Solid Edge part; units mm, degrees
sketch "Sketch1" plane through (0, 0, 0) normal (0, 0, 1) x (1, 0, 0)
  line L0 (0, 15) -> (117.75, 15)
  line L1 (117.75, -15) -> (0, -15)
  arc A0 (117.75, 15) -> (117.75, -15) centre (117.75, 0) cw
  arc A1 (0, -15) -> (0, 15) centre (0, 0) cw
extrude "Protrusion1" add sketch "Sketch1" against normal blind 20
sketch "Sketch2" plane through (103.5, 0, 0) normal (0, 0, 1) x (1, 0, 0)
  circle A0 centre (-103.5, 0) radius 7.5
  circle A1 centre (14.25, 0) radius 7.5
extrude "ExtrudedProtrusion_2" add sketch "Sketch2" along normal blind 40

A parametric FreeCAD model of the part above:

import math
import FreeCAD as App
import Part
import Sketcher
from FreeCAD import Vector
Q = App.Units.Quantity

doc = App.newDocument("Part")
params = doc.addObject("Spreadsheet::Sheet", "Params")
for row, (alias, value) in enumerate([
    ("sketch1_radius", "15 mm"),
    ("sketch1_width", "117.75 mm"),
    ("pad1_length", "20 mm"),
    ("sketch2_diameter", "15 mm"),
    ("pad2_length", "40 mm"),
], start=1):
    params.set(f"A{row}", alias)
    params.set(f"B{row}", "=" + value)
    params.setAlias(f"B{row}", alias)

body = doc.addObject("PartDesign::Body", "Body")

# Sketch on XY plane
sketch1 = body.newObject("Sketcher::SketchObject", "Sketch")
sketch1.AttachmentSupport = (doc.getObject("XY_Plane"), [""])
sketch1.MapMode = "FlatFace"
sketch1.addGeometry([
    Part.LineSegment(Vector(118, 15, 0), Vector(0, 15, 0)),
    Part.ArcOfCircle(Part.Circle(Vector(0, 0, 0), Vector(0, 0, 1), 15), math.radians(90), math.radians(270)),
    Part.LineSegment(Vector(0, -15, 0), Vector(118, -15, 0)),
    Part.ArcOfCircle(Part.Circle(Vector(118, 0, 0), Vector(0, 0, 1), 15), math.radians(-90), math.radians(90)),
], False)
sketch1.addConstraint([
    Sketcher.Constraint("Tangent", 0, 2, 1, 1),
    Sketcher.Constraint("Tangent", 1, 2, 2, 1),
    Sketcher.Constraint("Tangent", 2, 2, 3, 1),
    Sketcher.Constraint("Tangent", 3, 2, 0, 1),
    Sketcher.Constraint("Horizontal", 0),
    Sketcher.Constraint("Horizontal", 2),
    Sketcher.Constraint("Coincident", 1, 3, -1, 1),
    Sketcher.Constraint("Radius", 1, Q("15 mm")),
    Sketcher.Constraint("DistanceX", 0, 2, 0, 1, Q("117.75 mm")),
])
sketch1.setExpression("Constraints[7]", "Params.sketch1_radius")
sketch1.setExpression("Constraints[8]", "Params.sketch1_width")
pad1 = body.newObject("PartDesign::Pad", "Pad")
pad1.Profile = sketch1
pad1.setExpression("Length", "Params.pad1_length")
pad1.Reversed = True

# Sketch on XY plane
sketch2 = body.newObject("Sketcher::SketchObject", "Sketch001")
sketch2.AttachmentSupport = (doc.getObject("XY_Plane"), [""])
sketch2.MapMode = "FlatFace"
sketch2.addGeometry([
    Part.Circle(Vector(0, 0, 0), Vector(0, 0, 1), 8),
    Part.Circle(Vector(118, 0, 0), Vector(0, 0, 1), 8),
], False)
sketch2.addConstraint([
    Sketcher.Constraint("Coincident", 0, 3, -1, 1),
    Sketcher.Constraint("Equal", 0, 1),
    Sketcher.Constraint("PointOnObject", 1, 3, -1),
    Sketcher.Constraint("Diameter", 0, Q("15 mm")),
    Sketcher.Constraint("DistanceX", -1, 1, 1, 3, Q("117.75 mm")),
])
sketch2.setExpression("Constraints[3]", "Params.sketch2_diameter")
pad2 = body.newObject("PartDesign::Pad", "Pad001")
pad2.Profile = sketch2
pad2.setExpression("Length", "Params.pad2_length")

doc.recompute()
